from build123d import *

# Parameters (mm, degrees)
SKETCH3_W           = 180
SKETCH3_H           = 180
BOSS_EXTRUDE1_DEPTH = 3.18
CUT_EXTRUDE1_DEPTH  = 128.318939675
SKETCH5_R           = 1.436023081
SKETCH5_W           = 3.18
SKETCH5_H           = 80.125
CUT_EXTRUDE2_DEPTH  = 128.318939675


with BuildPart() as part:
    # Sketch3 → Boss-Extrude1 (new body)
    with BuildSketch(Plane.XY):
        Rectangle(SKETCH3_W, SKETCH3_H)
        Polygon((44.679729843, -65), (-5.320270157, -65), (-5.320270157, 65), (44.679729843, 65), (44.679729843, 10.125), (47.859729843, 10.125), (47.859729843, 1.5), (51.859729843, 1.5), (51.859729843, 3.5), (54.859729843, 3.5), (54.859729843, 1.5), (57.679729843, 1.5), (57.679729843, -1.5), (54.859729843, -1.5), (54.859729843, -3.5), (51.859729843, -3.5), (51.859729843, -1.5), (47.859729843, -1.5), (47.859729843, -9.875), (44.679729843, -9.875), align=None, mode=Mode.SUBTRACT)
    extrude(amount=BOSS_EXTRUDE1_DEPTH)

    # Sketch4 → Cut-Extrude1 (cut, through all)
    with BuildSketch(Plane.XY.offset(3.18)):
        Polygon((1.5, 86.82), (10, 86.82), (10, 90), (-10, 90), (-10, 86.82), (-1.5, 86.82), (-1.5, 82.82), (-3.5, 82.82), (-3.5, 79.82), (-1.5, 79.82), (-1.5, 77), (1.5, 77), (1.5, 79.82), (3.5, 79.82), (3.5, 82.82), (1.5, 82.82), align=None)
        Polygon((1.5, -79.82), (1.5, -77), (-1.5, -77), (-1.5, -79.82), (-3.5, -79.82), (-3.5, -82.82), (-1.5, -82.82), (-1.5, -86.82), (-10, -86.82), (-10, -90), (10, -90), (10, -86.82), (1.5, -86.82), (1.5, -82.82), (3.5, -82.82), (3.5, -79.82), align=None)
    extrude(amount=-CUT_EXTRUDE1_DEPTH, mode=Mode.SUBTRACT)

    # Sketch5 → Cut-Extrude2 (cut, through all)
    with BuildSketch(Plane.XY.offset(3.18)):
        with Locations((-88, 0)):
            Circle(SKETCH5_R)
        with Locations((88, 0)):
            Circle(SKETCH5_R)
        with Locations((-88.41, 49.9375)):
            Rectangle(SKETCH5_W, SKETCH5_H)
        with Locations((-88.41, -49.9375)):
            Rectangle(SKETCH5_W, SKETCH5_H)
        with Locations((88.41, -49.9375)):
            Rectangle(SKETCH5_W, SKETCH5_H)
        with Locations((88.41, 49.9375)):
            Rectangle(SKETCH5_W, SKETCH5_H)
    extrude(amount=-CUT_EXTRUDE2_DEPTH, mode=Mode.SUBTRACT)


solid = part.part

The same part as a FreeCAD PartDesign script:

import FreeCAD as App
import Part
import Sketcher
from FreeCAD import Vector
Q = App.Units.Quantity

doc = App.newDocument("Part")
body = doc.addObject("PartDesign::Body", "Body")

# Sketch on XY plane
sketch1 = body.newObject("Sketcher::SketchObject", "Sketch")
sketch1.AttachmentSupport = (doc.getObject("XY_Plane"), [""])
sketch1.MapMode = "FlatFace"
sketch1.addGeometry(Part.LineSegment(Vector(-90, 90, 0), Vector(-90, -90, 0)), False)
sketch1.addGeometry(Part.LineSegment(Vector(-90, -90, 0), Vector(90, -90, 0)), False)
sketch1.addGeometry(Part.LineSegment(Vector(90, -90, 0), Vector(90, 90, 0)), False)
sketch1.addGeometry(Part.LineSegment(Vector(90, 90, 0), Vector(-90, 90, 0)), False)
sketch1.addGeometry(Part.LineSegment(Vector(44.7, -9.9, 0), Vector(44.7, -65, 0)), False)
sketch1.addGeometry(Part.LineSegment(Vector(44.7, -65, 0), Vector(-5.3, -65, 0)), False)
sketch1.addGeometry(Part.LineSegment(Vector(-5.3, -65, 0), Vector(-5.3, 65, 0)), False)
sketch1.addGeometry(Part.LineSegment(Vector(-5.3, 65, 0), Vector(44.7, 65, 0)), False)
sketch1.addGeometry(Part.LineSegment(Vector(44.7, 65, 0), Vector(44.7, 10.1, 0)), False)
sketch1.addGeometry(Part.LineSegment(Vector(44.7, 10.1, 0), Vector(47.9, 10.1, 0)), False)
sketch1.addGeometry(Part.LineSegment(Vector(47.9, 10.1, 0), Vector(47.9, 1.5, 0)), False)
sketch1.addGeometry(Part.LineSegment(Vector(47.9, 1.5, 0), Vector(51.9, 1.5, 0)), False)
sketch1.addGeometry(Part.LineSegment(Vector(51.9, 1.5, 0), Vector(51.9, 3.5, 0)), False)
sketch1.addGeometry(Part.LineSegment(Vector(51.9, 3.5, 0), Vector(54.9, 3.5, 0)), False)
sketch1.addGeometry(Part.LineSegment(Vector(54.9, 3.5, 0), Vector(54.9, 1.5, 0)), False)
sketch1.addGeometry(Part.LineSegment(Vector(54.9, 1.5, 0), Vector(57.7, 1.5, 0)), False)
sketch1.addGeometry(Part.LineSegment(Vector(57.7, 1.5, 0), Vector(57.7, -1.5, 0)), False)
sketch1.addGeometry(Part.LineSegment(Vector(57.7, -1.5, 0), Vector(54.9, -1.5, 0)), False)
sketch1.addGeometry(Part.LineSegment(Vector(54.9, -1.5, 0), Vector(54.9, -3.5, 0)), False)
sketch1.addGeometry(Part.LineSegment(Vector(54.9, -3.5, 0), Vector(51.9, -3.5, 0)), False)
sketch1.addGeometry(Part.LineSegment(Vector(51.9, -3.5, 0), Vector(51.9, -1.5, 0)), False)
sketch1.addGeometry(Part.LineSegment(Vector(51.9, -1.5, 0), Vector(47.9, -1.5, 0)), False)
sketch1.addGeometry(Part.LineSegment(Vector(47.9, -1.5, 0), Vector(47.9, -9.9, 0)), False)
sketch1.addGeometry(Part.LineSegment(Vector(47.9, -9.9, 0), Vector(44.7, -9.9, 0)), False)
sketch1.addConstraint(Sketcher.Constraint("Coincident", 0, 2, 1, 1))
sketch1.addConstraint(Sketcher.Constraint("Coincident", 1, 2, 2, 1))
sketch1.addConstraint(Sketcher.Constraint("Coincident", 2, 2, 3, 1))
sketch1.addConstraint(Sketcher.Constraint("Coincident", 3, 2, 0, 1))
sketch1.addConstraint(Sketcher.Constraint("Coincident", 4, 2, 5, 1))
sketch1.addConstraint(Sketcher.Constraint("Coincident", 5, 2, 6, 1))
sketch1.addConstraint(Sketcher.Constraint("Coincident", 6, 2, 7, 1))
sketch1.addConstraint(Sketcher.Constraint("Coincident", 7, 2, 8, 1))
sketch1.addConstraint(Sketcher.Constraint("Coincident", 8, 2, 9, 1))
sketch1.addConstraint(Sketcher.Constraint("Coincident", 9, 2, 10, 1))
sketch1.addConstraint(Sketcher.Constraint("Coincident", 10, 2, 11, 1))
sketch1.addConstraint(Sketcher.Constraint("Coincident", 11, 2, 12, 1))
sketch1.addConstraint(Sketcher.Constraint("Coincident", 12, 2, 13, 1))
sketch1.addConstraint(Sketcher.Constraint("Coincident", 13, 2, 14, 1))
sketch1.addConstraint(Sketcher.Constraint("Coincident", 14, 2, 15, 1))
sketch1.addConstraint(Sketcher.Constraint("Coincident", 15, 2, 16, 1))
sketch1.addConstraint(Sketcher.Constraint("Coincident", 16, 2, 17, 1))
sketch1.addConstraint(Sketcher.Constraint("Coincident", 17, 2, 18, 1))
sketch1.addConstraint(Sketcher.Constraint("Coincident", 18, 2, 19, 1))
sketch1.addConstraint(Sketcher.Constraint("Coincident", 19, 2, 20, 1))
sketch1.addConstraint(Sketcher.Constraint("Coincident", 20, 2, 21, 1))
sketch1.addConstraint(Sketcher.Constraint("Coincident", 21, 2, 22, 1))
sketch1.addConstraint(Sketcher.Constraint("Coincident", 22, 2, 23, 1))
sketch1.addConstraint(Sketcher.Constraint("Coincident", 23, 2, 4, 1))
sketch1.addConstraint(Sketcher.Constraint("Vertical", 0))
sketch1.addConstraint(Sketcher.Constraint("Horizontal", 1))
sketch1.addConstraint(Sketcher.Constraint("Vertical", 2))
sketch1.addConstraint(Sketcher.Constraint("Horizontal", 3))
sketch1.addConstraint(Sketcher.Constraint("Vertical", 4))
sketch1.addConstraint(Sketcher.Constraint("Horizontal", 5))
sketch1.addConstraint(Sketcher.Constraint("Vertical", 6))
sketch1.addConstraint(Sketcher.Constraint("Horizontal", 7))
sketch1.addConstraint(Sketcher.Constraint("Vertical", 8))
sketch1.addConstraint(Sketcher.Constraint("Horizontal", 9))
sketch1.addConstraint(Sketcher.Constraint("Vertical", 10))
sketch1.addConstraint(Sketcher.Constraint("Horizontal", 11))
sketch1.addConstraint(Sketcher.Constraint("Vertical", 12))
sketch1.addConstraint(Sketcher.Constraint("Horizontal", 13))
sketch1.addConstraint(Sketcher.Constraint("Vertical", 14))
sketch1.addConstraint(Sketcher.Constraint("Horizontal", 15))
sketch1.addConstraint(Sketcher.Constraint("Vertical", 16))
sketch1.addConstraint(Sketcher.Constraint("Horizontal", 17))
sketch1.addConstraint(Sketcher.Constraint("Vertical", 18))
sketch1.addConstraint(Sketcher.Constraint("Horizontal", 19))
sketch1.addConstraint(Sketcher.Constraint("Vertical", 20))
sketch1.addConstraint(Sketcher.Constraint("Horizontal", 21))
sketch1.addConstraint(Sketcher.Constraint("Vertical", 22))
sketch1.addConstraint(Sketcher.Constraint("Horizontal", 23))
sketch1.addConstraint(Sketcher.Constraint("Symmetric", 0, 2, 2, 2, -1, 1))
sketch1.addConstraint(Sketcher.Constraint("Symmetric", 4, 2, 7, 2, -1))
sketch1.addConstraint(Sketcher.Constraint("Symmetric", 14, 2, 17, 2, -1))
sketch1.addConstraint(Sketcher.Constraint("Symmetric", 12, 2, 19, 2, -1))
sketch1.addConstraint(Sketcher.Constraint("Symmetric", 10, 2, 21, 2, -1))
sketch1.addConstraint(Sketcher.Constraint("Horizontal", 11, 2, 14, 2))
sketch1.addConstraint(Sketcher.Constraint("Equal", 3, 0))
sketch1.addConstraint(Sketcher.Constraint("Equal", 19, 16))
sketch1.addConstraint(Sketcher.Constraint("DistanceX", 1, 1, 1, 2, Q("180 mm")))
sketch1.addConstraint(Sketcher.Constraint("DistanceX", 5, 2, 5, 1, Q("50 mm")))
sketch1.addConstraint(Sketcher.Constraint("DistanceX", 11, 1, 11, 2, Q("4 mm")))
sketch1.addConstraint(Sketcher.Constraint("DistanceX", 13, 1, 13, 2, Q("3 mm")))
sketch1.addConstraint(Sketcher.Constraint("DistanceY", 6, 1, 6, 2, Q("130 mm")))
sketch1.addConstraint(Sketcher.Constraint("DistanceY", 12, 1, 12, 2, Q("2 mm")))
sketch1.addConstraint(Sketcher.Constraint("DistanceX", 9, 1, 9, 2, Q("3.18 mm")))
sketch1.addConstraint(Sketcher.Constraint("DistanceX", 15, 1, 15, 2, Q("2.82 mm")))
sketch1.addConstraint(Sketcher.Constraint("DistanceY", 4, 2, 4, 1, Q("55.125 mm")))
sketch1.addConstraint(Sketcher.Constraint("DistanceY", 8, 2, 8, 1, Q("54.875 mm")))
sketch1.addConstraint(Sketcher.Constraint("DistanceX", -1, 1, 4, 2, Q("44.67973 mm")))
pad1 = body.newObject("PartDesign::Pad", "Pad")
pad1.Profile = sketch1
pad1.Length = 3.18

# Sketch on XY plane
sketch2 = body.newObject("Sketcher::SketchObject", "Sketch001")
sketch2.AttachmentSupport = (doc.getObject("XY_Plane"), [""])
sketch2.MapMode = "FlatFace"
sketch2.AttachmentOffset = App.Placement(Vector(0, 0, 3.18), App.Rotation())
sketch2.addGeometry(Part.LineSegment(Vector(1.5, 86.8, 0), Vector(10, 86.8, 0)), False)
sketch2.addGeometry(Part.LineSegment(Vector(10, 86.8, 0), Vector(10, 90, 0)), False)
sketch2.addGeometry(Part.LineSegment(Vector(10, 90, 0), Vector(-10, 90, 0)), False)
sketch2.addGeometry(Part.LineSegment(Vector(-10, 90, 0), Vector(-10, 86.8, 0)), False)
sketch2.addGeometry(Part.LineSegment(Vector(-10, 86.8, 0), Vector(-1.5, 86.8, 0)), False)
sketch2.addGeometry(Part.LineSegment(Vector(-1.5, 86.8, 0), Vector(-1.5, 82.8, 0)), False)
sketch2.addGeometry(Part.LineSegment(Vector(-1.5, 82.8, 0), Vector(-3.5, 82.8, 0)), False)
sketch2.addGeometry(Part.LineSegment(Vector(-3.5, 82.8, 0), Vector(-3.5, 79.8, 0)), False)
sketch2.addGeometry(Part.LineSegment(Vector(-3.5, 79.8, 0), Vector(-1.5, 79.8, 0)), False)
sketch2.addGeometry(Part.LineSegment(Vector(-1.5, 79.8, 0), Vector(-1.5, 77, 0)), False)
sketch2.addGeometry(Part.LineSegment(Vector(-1.5, 77, 0), Vector(1.5, 77, 0)), False)
sketch2.addGeometry(Part.LineSegment(Vector(1.5, 77, 0), Vector(1.5, 79.8, 0)), False)
sketch2.addGeometry(Part.LineSegment(Vector(1.5, 79.8, 0), Vector(3.5, 79.8, 0)), False)
sketch2.addGeometry(Part.LineSegment(Vector(3.5, 79.8, 0), Vector(3.5, 82.8, 0)), False)
sketch2.addGeometry(Part.LineSegment(Vector(3.5, 82.8, 0), Vector(1.5, 82.8, 0)), False)
sketch2.addGeometry(Part.LineSegment(Vector(1.5, 82.8, 0), Vector(1.5, 86.8, 0)), False)
sketch2.addGeometry(Part.LineSegment(Vector(1.5, -79.8, 0), Vector(1.5, -77, 0)), False)
sketch2.addGeometry(Part.LineSegment(Vector(1.5, -77, 0), Vector(-1.5, -77, 0)), False)
sketch2.addGeometry(Part.LineSegment(Vector(-1.5, -77, 0), Vector(-1.5, -79.8, 0)), False)
sketch2.addGeometry(Part.LineSegment(Vector(-1.5, -79.8, 0), Vector(-3.5, -79.8, 0)), False)
sketch2.addGeometry(Part.LineSegment(Vector(-3.5, -79.8, 0), Vector(-3.5, -82.8, 0)), False)
sketch2.addGeometry(Part.LineSegment(Vector(-3.5, -82.8, 0), Vector(-1.5, -82.8, 0)), False)
sketch2.addGeometry(Part.LineSegment(Vector(-1.5, -82.8, 0), Vector(-1.5, -86.8, 0)), False)
sketch2.addGeometry(Part.LineSegment(Vector(-1.5, -86.8, 0), Vector(-10, -86.8, 0)), False)
sketch2.addGeometry(Part.LineSegment(Vector(-10, -86.8, 0), Vector(-10, -90, 0)), False)
sketch2.addGeometry(Part.LineSegment(Vector(-10, -90, 0), Vector(10, -90, 0)), False)
sketch2.addGeometry(Part.LineSegment(Vector(10, -90, 0), Vector(10, -86.8, 0)), False)
sketch2.addGeometry(Part.LineSegment(Vector(10, -86.8, 0), Vector(1.5, -86.8, 0)), False)
sketch2.addGeometry(Part.LineSegment(Vector(1.5, -86.8, 0), Vector(1.5, -82.8, 0)), False)
sketch2.addGeometry(Part.LineSegment(Vector(1.5, -82.8, 0), Vector(3.5, -82.8, 0)), False)
sketch2.addGeometry(Part.LineSegment(Vector(3.5, -82.8, 0), Vector(3.5, -79.8, 0)), False)
sketch2.addGeometry(Part.LineSegment(Vector(3.5, -79.8, 0), Vector(1.5, -79.8, 0)), False)
sketch2.addConstraint(Sketcher.Constraint("Coincident", 0, 2, 1, 1))
sketch2.addConstraint(Sketcher.Constraint("Coincident", 1, 2, 2, 1))
sketch2.addConstraint(Sketcher.Constraint("Coincident", 2, 2, 3, 1))
sketch2.addConstraint(Sketcher.Constraint("Coincident", 3, 2, 4, 1))
sketch2.addConstraint(Sketcher.Constraint("Coincident", 4, 2, 5, 1))
sketch2.addConstraint(Sketcher.Constraint("Coincident", 5, 2, 6, 1))
sketch2.addConstraint(Sketcher.Constraint("Coincident", 6, 2, 7, 1))
sketch2.addConstraint(Sketcher.Constraint("Coincident", 7, 2, 8, 1))
sketch2.addConstraint(Sketcher.Constraint("Coincident", 8, 2, 9, 1))
sketch2.addConstraint(Sketcher.Constraint("Coincident", 9, 2, 10, 1))
sketch2.addConstraint(Sketcher.Constraint("Coincident", 10, 2, 11, 1))
sketch2.addConstraint(Sketcher.Constraint("Coincident", 11, 2, 12, 1))
sketch2.addConstraint(Sketcher.Constraint("Coincident", 12, 2, 13, 1))
sketch2.addConstraint(Sketcher.Constraint("Coincident", 13, 2, 14, 1))
sketch2.addConstraint(Sketcher.Constraint("Coincident", 14, 2, 15, 1))
sketch2.addConstraint(Sketcher.Constraint("Coincident", 15, 2, 0, 1))
sketch2.addConstraint(Sketcher.Constraint("Coincident", 16, 2, 17, 1))
sketch2.addConstraint(Sketcher.Constraint("Coincident", 17, 2, 18, 1))
sketch2.addConstraint(Sketcher.Constraint("Coincident", 18, 2, 19, 1))
sketch2.addConstraint(Sketcher.Constraint("Coincident", 19, 2, 20, 1))
sketch2.addConstraint(Sketcher.Constraint("Coincident", 20, 2, 21, 1))
sketch2.addConstraint(Sketcher.Constraint("Coincident", 21, 2, 22, 1))
sketch2.addConstraint(Sketcher.Constraint("Coincident", 22, 2, 23, 1))
sketch2.addConstraint(Sketcher.Constraint("Coincident", 23, 2, 24, 1))
sketch2.addConstraint(Sketcher.Constraint("Coincident", 24, 2, 25, 1))
sketch2.addConstraint(Sketcher.Constraint("Coincident", 25, 2, 26, 1))
sketch2.addConstraint(Sketcher.Constraint("Coincident", 26, 2, 27, 1))
sketch2.addConstraint(Sketcher.Constraint("Coincident", 27, 2, 28, 1))
sketch2.addConstraint(Sketcher.Constraint("Coincident", 28, 2, 29, 1))
sketch2.addConstraint(Sketcher.Constraint("Coincident", 29, 2, 30, 1))
sketch2.addConstraint(Sketcher.Constraint("Coincident", 30, 2, 31, 1))
sketch2.addConstraint(Sketcher.Constraint("Coincident", 31, 2, 16, 1))
sketch2.addConstraint(Sketcher.Constraint("Horizontal", 0))
sketch2.addConstraint(Sketcher.Constraint("Vertical", 1))
sketch2.addConstraint(Sketcher.Constraint("Horizontal", 2))
sketch2.addConstraint(Sketcher.Constraint("Vertical", 3))
sketch2.addConstraint(Sketcher.Constraint("Horizontal", 4))
sketch2.addConstraint(Sketcher.Constraint("Vertical", 5))
sketch2.addConstraint(Sketcher.Constraint("Horizontal", 6))
sketch2.addConstraint(Sketcher.Constraint("Vertical", 7))
sketch2.addConstraint(Sketcher.Constraint("Horizontal", 8))
sketch2.addConstraint(Sketcher.Constraint("Vertical", 9))
sketch2.addConstraint(Sketcher.Constraint("Horizontal", 10))
sketch2.addConstraint(Sketcher.Constraint("Vertical", 11))
sketch2.addConstraint(Sketcher.Constraint("Horizontal", 12))
sketch2.addConstraint(Sketcher.Constraint("Vertical", 13))
sketch2.addConstraint(Sketcher.Constraint("Horizontal", 14))
sketch2.addConstraint(Sketcher.Constraint("Vertical", 15))
sketch2.addConstraint(Sketcher.Constraint("Vertical", 16))
sketch2.addConstraint(Sketcher.Constraint("Horizontal", 17))
sketch2.addConstraint(Sketcher.Constraint("Vertical", 18))
sketch2.addConstraint(Sketcher.Constraint("Horizontal", 19))
sketch2.addConstraint(Sketcher.Constraint("Vertical", 20))
sketch2.addConstraint(Sketcher.Constraint("Horizontal", 21))
sketch2.addConstraint(Sketcher.Constraint("Vertical", 22))
sketch2.addConstraint(Sketcher.Constraint("Horizontal", 23))
sketch2.addConstraint(Sketcher.Constraint("Vertical", 24))
sketch2.addConstraint(Sketcher.Constraint("Horizontal", 25))
sketch2.addConstraint(Sketcher.Constraint("Vertical", 26))
sketch2.addConstraint(Sketcher.Constraint("Horizontal", 27))
sketch2.addConstraint(Sketcher.Constraint("Vertical", 28))
sketch2.addConstraint(Sketcher.Constraint("Horizontal", 29))
sketch2.addConstraint(Sketcher.Constraint("Vertical", 30))
sketch2.addConstraint(Sketcher.Constraint("Horizontal", 31))
sketch2.addConstraint(Sketcher.Constraint("Symmetric", 9, 2, 16, 2, -1, 1))
sketch2.addConstraint(Sketcher.Constraint("Symmetric", 11, 2, 18, 2, -1, 1))
sketch2.addConstraint(Sketcher.Constraint("Symmetric", 13, 2, 20, 2, -1, 1))
sketch2.addConstraint(Sketcher.Constraint("Symmetric", 15, 2, 22, 2, -1, 1))
sketch2.addConstraint(Sketcher.Constraint("Symmetric", 1, 2, 24, 2, -1, 1))
sketch2.addConstraint(Sketcher.Constraint("Symmetric", 3, 2, 26, 2, -1, 1))
sketch2.addConstraint(Sketcher.Constraint("Symmetric", 5, 2, 28, 2, -1, 1))
sketch2.addConstraint(Sketcher.Constraint("Symmetric", 7, 2, 30, 2, -1, 1))
sketch2.addConstraint(Sketcher.Constraint("Symmetric", 0, 2, 3, 2, -2))
sketch2.addConstraint(Sketcher.Constraint("Symmetric", 8, 2, 11, 2, -2))
sketch2.addConstraint(Sketcher.Constraint("Symmetric", 6, 2, 13, 2, -2))
sketch2.addConstraint(Sketcher.Constraint("Vertical", 5, 2, 8, 2))
sketch2.addConstraint(Sketcher.Constraint("Vertical", 11, 2, 14, 2))
sketch2.addConstraint(Sketcher.Constraint("Equal", 17, 7))
sketch2.addConstraint(Sketcher.Constraint("DistanceX", 2, 2, 2, 1, Q("20 mm")))
sketch2.addConstraint(Sketcher.Constraint("DistanceX", 6, 2, 6, 1, Q("2 mm")))
sketch2.addConstraint(Sketcher.Constraint("DistanceX", 10, 1, 10, 2, Q("3 mm")))
sketch2.addConstraint(Sketcher.Constraint("DistanceY", 5, 2, 5, 1, Q("4 mm")))
sketch2.addConstraint(Sketcher.Constraint("DistanceY", -1, 1, 1, 2, Q("90 mm")))
sketch2.addConstraint(Sketcher.Constraint("DistanceY", -1, 1, 9, 2, Q("77 mm")))
sketch2.addConstraint(Sketcher.Constraint("DistanceY", 1, 1, 1, 2, Q("3.18 mm")))
pocket1 = body.newObject("PartDesign::Pocket", "Pocket")
pocket1.Profile = sketch2
pocket1.Type = "ThroughAll"

# Sketch on XY plane
sketch3 = body.newObject("Sketcher::SketchObject", "Sketch002")
sketch3.AttachmentSupport = (doc.getObject("XY_Plane"), [""])
sketch3.MapMode = "FlatFace"
sketch3.AttachmentOffset = App.Placement(Vector(0, 0, 3.18), App.Rotation())
sketch3.addGeometry(Part.Circle(Vector(-88, 0, 0), Vector(0, 0, 1), 1.4), False)
sketch3.addGeometry(Part.Circle(Vector(88, 0, 0), Vector(0, 0, 1), 1.4), False)
sketch3.addGeometry(Part.LineSegment(Vector(-90, 90, 0), Vector(-90, 9.9, 0)), False)
sketch3.addGeometry(Part.LineSegment(Vector(-90, 9.9, 0), Vector(-86.8, 9.9, 0)), False)
sketch3.addGeometry(Part.LineSegment(Vector(-86.8, 9.9, 0), Vector(-86.8, 90, 0)), False)
sketch3.addGeometry(Part.LineSegment(Vector(-86.8, 90, 0), Vector(-90, 90, 0)), False)
sketch3.addGeometry(Part.LineSegment(Vector(-90, -9.9, 0), Vector(-90, -90, 0)), False)
sketch3.addGeometry(Part.LineSegment(Vector(-90, -90, 0), Vector(-86.8, -90, 0)), False)
sketch3.addGeometry(Part.LineSegment(Vector(-86.8, -90, 0), Vector(-86.8, -9.9, 0)), False)
sketch3.addGeometry(Part.LineSegment(Vector(-86.8, -9.9, 0), Vector(-90, -9.9, 0)), False)
sketch3.addGeometry(Part.LineSegment(Vector(86.8, -9.9, 0), Vector(86.8, -90, 0)), False)
sketch3.addGeometry(Part.LineSegment(Vector(86.8, -90, 0), Vector(90, -90, 0)), False)
sketch3.addGeometry(Part.LineSegment(Vector(90, -90, 0), Vector(90, -9.9, 0)), False)
sketch3.addGeometry(Part.LineSegment(Vector(90, -9.9, 0), Vector(86.8, -9.9, 0)), False)
sketch3.addGeometry(Part.LineSegment(Vector(86.8, 90, 0), Vector(86.8, 9.9, 0)), False)
sketch3.addGeometry(Part.LineSegment(Vector(86.8, 9.9, 0), Vector(90, 9.9, 0)), False)
sketch3.addGeometry(Part.LineSegment(Vector(90, 9.9, 0), Vector(90, 90, 0)), False)
sketch3.addGeometry(Part.LineSegment(Vector(90, 90, 0), Vector(86.8, 90, 0)), False)
sketch3.addConstraint(Sketcher.Constraint("Coincident", 2, 2, 3, 1))
sketch3.addConstraint(Sketcher.Constraint("Coincident", 3, 2, 4, 1))
sketch3.addConstraint(Sketcher.Constraint("Coincident", 4, 2, 5, 1))
sketch3.addConstraint(Sketcher.Constraint("Coincident", 5, 2, 2, 1))
sketch3.addConstraint(Sketcher.Constraint("Coincident", 6, 2, 7, 1))
sketch3.addConstraint(Sketcher.Constraint("Coincident", 7, 2, 8, 1))
sketch3.addConstraint(Sketcher.Constraint("Coincident", 8, 2, 9, 1))
sketch3.addConstraint(Sketcher.Constraint("Coincident", 9, 2, 6, 1))
sketch3.addConstraint(Sketcher.Constraint("Coincident", 10, 2, 11, 1))
sketch3.addConstraint(Sketcher.Constraint("Coincident", 11, 2, 12, 1))
sketch3.addConstraint(Sketcher.Constraint("Coincident", 12, 2, 13, 1))
sketch3.addConstraint(Sketcher.Constraint("Coincident", 13, 2, 10, 1))
sketch3.addConstraint(Sketcher.Constraint("Coincident", 14, 2, 15, 1))
sketch3.addConstraint(Sketcher.Constraint("Coincident", 15, 2, 16, 1))
sketch3.addConstraint(Sketcher.Constraint("Coincident", 16, 2, 17, 1))
sketch3.addConstraint(Sketcher.Constraint("Coincident", 17, 2, 14, 1))
sketch3.addConstraint(Sketcher.Constraint("Vertical", 2))
sketch3.addConstraint(Sketcher.Constraint("Horizontal", 3))
sketch3.addConstraint(Sketcher.Constraint("Vertical", 4))
sketch3.addConstraint(Sketcher.Constraint("Horizontal", 5))
sketch3.addConstraint(Sketcher.Constraint("Vertical", 6))
sketch3.addConstraint(Sketcher.Constraint("Horizontal", 7))
sketch3.addConstraint(Sketcher.Constraint("Vertical", 8))
sketch3.addConstraint(Sketcher.Constraint("Horizontal", 9))
sketch3.addConstraint(Sketcher.Constraint("Vertical", 10))
sketch3.addConstraint(Sketcher.Constraint("Horizontal", 11))
sketch3.addConstraint(Sketcher.Constraint("Vertical", 12))
sketch3.addConstraint(Sketcher.Constraint("Horizontal", 13))
sketch3.addConstraint(Sketcher.Constraint("Vertical", 14))
sketch3.addConstraint(Sketcher.Constraint("Horizontal", 15))
sketch3.addConstraint(Sketcher.Constraint("Vertical", 16))
sketch3.addConstraint(Sketcher.Constraint("Horizontal", 17))
sketch3.addConstraint(Sketcher.Constraint("Equal", 0, 1))
sketch3.addConstraint(Sketcher.Constraint("Symmetric", 0, 3, 1, 3, -1, 1))
sketch3.addConstraint(Sketcher.Constraint("Symmetric", 4, 2, 10, 2, -1, 1))
sketch3.addConstraint(Sketcher.Constraint("Symmetric", 2, 2, 12, 2, -1, 1))
sketch3.addConstraint(Sketcher.Constraint("Symmetric", 8, 2, 14, 2, -1, 1))
sketch3.addConstraint(Sketcher.Constraint("Symmetric", 6, 2, 16, 2, -1, 1))
sketch3.addConstraint(Sketcher.Constraint("Symmetric", 7, 2, 10, 2, -2))
sketch3.addConstraint(Sketcher.Constraint("Symmetric", 9, 2, 12, 2, -2))
sketch3.addConstraint(Sketcher.Constraint("PointOnObject", 0, 3, -1))
sketch3.addConstraint(Sketcher.Constraint("DistanceX", 0, 3, -1, 1, Q("88 mm")))
sketch3.addConstraint(Sketcher.Constraint("DistanceX", 2, 2, -1, 1, Q("90 mm")))
sketch3.addConstraint(Sketcher.Constraint("DistanceY", -1, 1, 4, 2, Q("90 mm")))
sketch3.addConstraint(Sketcher.Constraint("DistanceX", 3, 1, 3, 2, Q("3.18 mm")))
sketch3.addConstraint(Sketcher.Constraint("DistanceY", 2, 2, 2, 1, Q("80.125 mm")))
sketch3.addConstraint(Sketcher.Constraint("Diameter", 0, Q("2.872046 mm")))
pocket2 = body.newObject("PartDesign::Pocket", "Pocket001")
pocket2.Profile = sketch3
pocket2.Type = "ThroughAll"

doc.recompute()
